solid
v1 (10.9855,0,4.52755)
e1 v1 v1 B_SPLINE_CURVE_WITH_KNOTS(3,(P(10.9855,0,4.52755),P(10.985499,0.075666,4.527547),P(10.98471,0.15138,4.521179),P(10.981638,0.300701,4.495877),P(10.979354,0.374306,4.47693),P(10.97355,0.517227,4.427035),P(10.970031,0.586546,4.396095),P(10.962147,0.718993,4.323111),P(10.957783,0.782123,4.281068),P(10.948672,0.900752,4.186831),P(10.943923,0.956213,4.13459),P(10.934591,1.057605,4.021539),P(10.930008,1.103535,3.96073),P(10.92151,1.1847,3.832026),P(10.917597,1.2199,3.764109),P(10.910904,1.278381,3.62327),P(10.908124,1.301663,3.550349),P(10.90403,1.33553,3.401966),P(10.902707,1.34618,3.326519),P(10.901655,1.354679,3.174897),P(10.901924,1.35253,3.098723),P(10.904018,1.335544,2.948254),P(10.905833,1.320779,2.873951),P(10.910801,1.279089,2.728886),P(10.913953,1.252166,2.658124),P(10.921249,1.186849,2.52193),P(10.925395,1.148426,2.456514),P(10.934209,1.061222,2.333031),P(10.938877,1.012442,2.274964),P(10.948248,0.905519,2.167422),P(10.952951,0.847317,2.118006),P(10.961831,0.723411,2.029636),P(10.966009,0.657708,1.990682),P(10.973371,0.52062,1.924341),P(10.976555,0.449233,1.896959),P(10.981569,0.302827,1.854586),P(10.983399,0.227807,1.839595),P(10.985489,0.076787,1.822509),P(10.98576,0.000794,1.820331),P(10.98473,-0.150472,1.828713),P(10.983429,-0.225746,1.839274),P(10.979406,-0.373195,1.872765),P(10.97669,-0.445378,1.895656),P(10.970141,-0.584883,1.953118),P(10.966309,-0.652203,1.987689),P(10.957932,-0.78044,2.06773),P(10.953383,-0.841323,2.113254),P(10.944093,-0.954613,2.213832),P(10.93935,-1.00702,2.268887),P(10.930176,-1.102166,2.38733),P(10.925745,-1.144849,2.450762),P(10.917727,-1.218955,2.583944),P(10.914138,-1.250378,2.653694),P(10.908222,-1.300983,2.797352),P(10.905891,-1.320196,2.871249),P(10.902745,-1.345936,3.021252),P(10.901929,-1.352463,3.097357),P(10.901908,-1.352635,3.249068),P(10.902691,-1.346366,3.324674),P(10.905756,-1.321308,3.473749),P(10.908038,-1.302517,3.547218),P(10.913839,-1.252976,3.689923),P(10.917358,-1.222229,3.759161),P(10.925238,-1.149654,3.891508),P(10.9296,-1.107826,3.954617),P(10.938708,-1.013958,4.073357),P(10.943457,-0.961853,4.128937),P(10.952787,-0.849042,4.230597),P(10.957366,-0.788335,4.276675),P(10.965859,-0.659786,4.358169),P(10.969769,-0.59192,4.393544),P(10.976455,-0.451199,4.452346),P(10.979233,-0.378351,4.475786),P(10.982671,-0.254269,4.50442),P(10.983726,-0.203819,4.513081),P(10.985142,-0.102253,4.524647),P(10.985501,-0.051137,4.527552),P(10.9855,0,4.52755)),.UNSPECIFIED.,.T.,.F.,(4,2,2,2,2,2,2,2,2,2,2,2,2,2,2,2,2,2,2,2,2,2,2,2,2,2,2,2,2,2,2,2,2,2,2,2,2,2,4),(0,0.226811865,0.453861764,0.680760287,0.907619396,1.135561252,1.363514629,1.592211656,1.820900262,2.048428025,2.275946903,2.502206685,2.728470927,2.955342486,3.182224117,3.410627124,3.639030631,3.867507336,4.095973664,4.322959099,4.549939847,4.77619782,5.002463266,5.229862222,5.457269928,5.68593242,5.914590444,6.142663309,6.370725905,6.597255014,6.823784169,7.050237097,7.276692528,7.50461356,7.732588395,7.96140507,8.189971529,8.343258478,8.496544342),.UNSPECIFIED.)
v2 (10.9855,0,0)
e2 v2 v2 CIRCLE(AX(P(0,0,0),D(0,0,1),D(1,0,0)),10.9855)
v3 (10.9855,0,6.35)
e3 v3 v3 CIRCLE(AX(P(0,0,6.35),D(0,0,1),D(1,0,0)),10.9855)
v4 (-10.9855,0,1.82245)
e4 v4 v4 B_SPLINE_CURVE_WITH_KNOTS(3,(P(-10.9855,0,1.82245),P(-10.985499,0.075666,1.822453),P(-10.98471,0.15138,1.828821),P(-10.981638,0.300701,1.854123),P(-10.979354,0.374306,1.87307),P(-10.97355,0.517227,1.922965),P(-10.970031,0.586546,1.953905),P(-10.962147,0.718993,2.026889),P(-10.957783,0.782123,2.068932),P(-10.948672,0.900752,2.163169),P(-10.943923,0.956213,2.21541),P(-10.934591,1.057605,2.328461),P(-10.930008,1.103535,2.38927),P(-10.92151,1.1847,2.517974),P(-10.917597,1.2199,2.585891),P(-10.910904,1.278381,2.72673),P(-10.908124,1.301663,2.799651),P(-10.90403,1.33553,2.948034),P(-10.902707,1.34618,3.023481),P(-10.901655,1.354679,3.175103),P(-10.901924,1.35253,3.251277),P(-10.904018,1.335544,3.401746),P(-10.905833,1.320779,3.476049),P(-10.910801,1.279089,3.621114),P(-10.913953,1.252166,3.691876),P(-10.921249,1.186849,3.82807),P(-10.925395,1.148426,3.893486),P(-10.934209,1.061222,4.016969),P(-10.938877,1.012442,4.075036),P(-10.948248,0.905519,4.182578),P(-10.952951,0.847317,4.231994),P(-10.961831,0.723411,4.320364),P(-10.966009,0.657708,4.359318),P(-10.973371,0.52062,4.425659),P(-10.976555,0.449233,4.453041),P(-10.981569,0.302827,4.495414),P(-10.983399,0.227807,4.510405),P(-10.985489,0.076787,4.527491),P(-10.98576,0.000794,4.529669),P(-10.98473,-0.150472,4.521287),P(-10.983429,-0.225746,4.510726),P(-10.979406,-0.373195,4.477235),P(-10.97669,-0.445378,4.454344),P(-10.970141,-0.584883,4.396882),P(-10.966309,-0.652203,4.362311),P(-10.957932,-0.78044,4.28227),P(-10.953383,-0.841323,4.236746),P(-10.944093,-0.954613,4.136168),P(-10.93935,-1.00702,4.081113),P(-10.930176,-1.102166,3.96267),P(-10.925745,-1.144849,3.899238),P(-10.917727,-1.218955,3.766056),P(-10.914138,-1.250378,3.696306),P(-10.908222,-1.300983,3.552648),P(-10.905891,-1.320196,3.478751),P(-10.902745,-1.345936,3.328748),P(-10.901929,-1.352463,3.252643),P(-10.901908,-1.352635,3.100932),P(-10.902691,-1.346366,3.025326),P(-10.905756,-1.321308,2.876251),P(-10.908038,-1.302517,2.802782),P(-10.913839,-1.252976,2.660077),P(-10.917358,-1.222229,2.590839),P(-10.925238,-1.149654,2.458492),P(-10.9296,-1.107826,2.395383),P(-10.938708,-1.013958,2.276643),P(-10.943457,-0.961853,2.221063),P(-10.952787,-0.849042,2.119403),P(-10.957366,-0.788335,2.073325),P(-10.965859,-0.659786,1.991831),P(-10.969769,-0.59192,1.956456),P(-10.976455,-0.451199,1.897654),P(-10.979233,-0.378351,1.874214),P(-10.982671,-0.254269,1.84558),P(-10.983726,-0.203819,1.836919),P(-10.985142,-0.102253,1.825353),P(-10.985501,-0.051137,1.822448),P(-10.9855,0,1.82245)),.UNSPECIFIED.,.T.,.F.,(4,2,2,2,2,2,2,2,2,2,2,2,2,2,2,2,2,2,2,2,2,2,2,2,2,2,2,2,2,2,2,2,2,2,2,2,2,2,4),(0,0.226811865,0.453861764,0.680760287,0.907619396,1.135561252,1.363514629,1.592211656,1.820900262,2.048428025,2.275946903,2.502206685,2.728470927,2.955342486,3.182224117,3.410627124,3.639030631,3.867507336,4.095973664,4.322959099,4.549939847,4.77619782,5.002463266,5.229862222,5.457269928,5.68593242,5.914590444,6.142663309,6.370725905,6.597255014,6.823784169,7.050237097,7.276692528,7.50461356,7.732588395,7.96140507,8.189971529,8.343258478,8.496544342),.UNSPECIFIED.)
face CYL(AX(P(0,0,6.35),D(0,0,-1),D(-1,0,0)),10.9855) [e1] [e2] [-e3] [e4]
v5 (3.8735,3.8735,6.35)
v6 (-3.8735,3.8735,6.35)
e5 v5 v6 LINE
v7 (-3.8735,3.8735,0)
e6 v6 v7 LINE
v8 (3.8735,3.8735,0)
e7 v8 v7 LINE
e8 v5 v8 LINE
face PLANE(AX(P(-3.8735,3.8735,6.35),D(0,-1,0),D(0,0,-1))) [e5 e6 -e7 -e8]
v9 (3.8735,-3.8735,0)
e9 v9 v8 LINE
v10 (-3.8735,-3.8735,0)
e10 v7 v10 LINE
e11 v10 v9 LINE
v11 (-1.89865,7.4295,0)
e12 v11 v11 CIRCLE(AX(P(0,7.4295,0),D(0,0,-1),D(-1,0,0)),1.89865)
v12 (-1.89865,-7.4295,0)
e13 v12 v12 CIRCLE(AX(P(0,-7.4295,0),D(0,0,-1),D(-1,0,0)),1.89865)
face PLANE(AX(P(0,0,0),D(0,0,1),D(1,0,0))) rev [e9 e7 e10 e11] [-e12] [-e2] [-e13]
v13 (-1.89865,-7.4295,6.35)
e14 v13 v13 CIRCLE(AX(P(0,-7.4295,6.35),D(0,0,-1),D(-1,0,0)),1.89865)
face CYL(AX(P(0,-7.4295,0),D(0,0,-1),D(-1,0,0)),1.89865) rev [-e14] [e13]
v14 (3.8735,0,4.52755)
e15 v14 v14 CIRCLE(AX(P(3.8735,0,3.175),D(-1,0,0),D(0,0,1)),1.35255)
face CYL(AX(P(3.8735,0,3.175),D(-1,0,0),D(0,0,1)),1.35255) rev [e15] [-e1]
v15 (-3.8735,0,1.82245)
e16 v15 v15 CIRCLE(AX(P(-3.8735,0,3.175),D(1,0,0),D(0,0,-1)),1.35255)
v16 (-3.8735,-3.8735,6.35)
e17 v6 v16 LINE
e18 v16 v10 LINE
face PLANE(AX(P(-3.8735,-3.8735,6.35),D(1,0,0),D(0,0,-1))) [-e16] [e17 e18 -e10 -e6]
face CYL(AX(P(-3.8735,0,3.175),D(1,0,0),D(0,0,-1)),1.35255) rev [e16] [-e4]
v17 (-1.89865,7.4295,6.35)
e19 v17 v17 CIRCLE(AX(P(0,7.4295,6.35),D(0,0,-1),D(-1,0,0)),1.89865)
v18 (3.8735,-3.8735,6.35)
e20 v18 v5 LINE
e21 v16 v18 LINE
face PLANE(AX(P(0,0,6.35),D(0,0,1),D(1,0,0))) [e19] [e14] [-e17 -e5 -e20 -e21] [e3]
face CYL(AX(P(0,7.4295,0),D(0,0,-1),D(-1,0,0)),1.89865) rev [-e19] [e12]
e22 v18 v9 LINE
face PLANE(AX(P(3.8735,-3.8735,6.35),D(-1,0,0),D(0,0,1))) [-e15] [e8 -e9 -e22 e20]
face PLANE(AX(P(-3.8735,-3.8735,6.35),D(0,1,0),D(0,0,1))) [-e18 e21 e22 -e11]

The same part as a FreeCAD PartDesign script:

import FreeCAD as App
import Part
import Sketcher
Q = App.Units.Quantity

doc = App.newDocument("Part")
body = doc.addObject("PartDesign::Body", "Body")

# Sketch on XY plane
sketch1 = doc.addObject("Sketcher::SketchObject", "Sketch")
body.addObject(sketch1)
sketch1.AttachmentSupport = (doc.XY_Plane, [""])
sketch1.MapMode = "FlatFace"
sketch1.addGeometry([
    Part.Circle(App.Vector(0, 0, 0), App.Vector(0, 0, 1), 10.9855),  # 0
    Part.LineSegment(App.Vector(3.8735, -3.8735, 0), App.Vector(-3.8735, -3.8735, 0)),  # 1
    Part.LineSegment(App.Vector(-3.8735, -3.8735, 0), App.Vector(-3.8735, 3.8735, 0)),  # 2
    Part.LineSegment(App.Vector(-3.8735, 3.8735, 0), App.Vector(3.8735, 3.8735, 0)),  # 3
    Part.LineSegment(App.Vector(3.8735, 3.8735, 0), App.Vector(3.8735, -3.8735, 0)),  # 4
], False)
sketch1.addConstraint([
    Sketcher.Constraint("Coincident", 1, 2, 2, 1),
    Sketcher.Constraint("Coincident", 2, 2, 3, 1),
    Sketcher.Constraint("Coincident", 3, 2, 4, 1),
    Sketcher.Constraint("Coincident", 4, 2, 1, 1),
    Sketcher.Constraint("Horizontal", 1),
    Sketcher.Constraint("Vertical", 2),
    Sketcher.Constraint("Horizontal", 3),
    Sketcher.Constraint("Vertical", 4),
    Sketcher.Constraint("Coincident", 0, 3, -1, 1),
    Sketcher.Constraint("Symmetric", 1, 2, 3, 2, -1, 1),
    Sketcher.Constraint("Equal", 3, 2),
    Sketcher.Constraint("Diameter", 0, Q("0.865 in")),
    Sketcher.Constraint("DistanceX", 1, 2, 1, 1, Q("0.305 in")),
])
pad1 = doc.addObject("PartDesign::Pad", "Pad")
body.addObject(pad1)
pad1.Profile = sketch1
pad1.Length = Q("0.25 in")

# Sketch on YZ plane
sketch2 = doc.addObject("Sketcher::SketchObject", "Sketch001")
body.addObject(sketch2)
sketch2.AttachmentSupport = (doc.YZ_Plane, [""])
sketch2.MapMode = "FlatFace"
sketch2.AttachmentOffset = App.Placement(App.Vector(0, 0, 0.4325 * 25.4), App.Rotation())
sketch2.addGeometry(Part.Circle(App.Vector(0, 3.175, 0), App.Vector(0, 0, 1), 1.35255), False)
sketch2.addConstraint([
    Sketcher.Constraint("PointOnObject", 0, 3, -2),
    Sketcher.Constraint("Diameter", 0, Q("0.1065 in")),
    Sketcher.Constraint("DistanceY", -1, 1, 0, 3, Q("0.125 in")),
])
doc.recompute()
hole = doc.addObject("PartDesign::Hole", "Hole")
body.addObject(hole)
hole.Profile = sketch2
hole.ThreadType = "None"
hole.Diameter = Q("0.1065 in")
hole.DepthType = "Dimension"
hole.Depth = Q("0.28 in")
hole.DrillPoint = "Flat"

# Sketch on YZ plane
sketch3 = doc.addObject("Sketcher::SketchObject", "Sketch002")
body.addObject(sketch3)
sketch3.AttachmentSupport = (doc.YZ_Plane, [""])
sketch3.MapMode = "FlatFace"
sketch3.AttachmentOffset = App.Placement(App.Vector(0, 0, 0.1525 * 25.4), App.Rotation())
sketch3.addGeometry(Part.Circle(App.Vector(0, 3.175, 0), App.Vector(0, 0, 1), 1.35255), False)
sketch3.addConstraint([
    Sketcher.Constraint("PointOnObject", 0, 3, -2),
    Sketcher.Constraint("Diameter", 0, Q("0.1065 in")),
    Sketcher.Constraint("DistanceY", -1, 1, 0, 3, Q("0.125 in")),
])
doc.recompute()
hole2 = doc.addObject("PartDesign::Hole", "Hole001")
body.addObject(hole2)
hole2.Profile = sketch3
hole2.ThreadType = "None"
hole2.Diameter = Q("0.1065 in")
hole2.DepthType = "Dimension"
hole2.Depth = Q("0.28 in")
hole2.DrillPoint = "Flat"
hole2.Reversed = True

# Sketch on YZ plane
sketch4 = doc.addObject("Sketcher::SketchObject", "Sketch003")
body.addObject(sketch4)
sketch4.AttachmentSupport = (doc.YZ_Plane, [""])
sketch4.MapMode = "FlatFace"
sketch4.AttachmentOffset = App.Placement(App.Vector(0, 0, -0.1525 * 25.4), App.Rotation())
sketch4.addGeometry(Part.Circle(App.Vector(0, 3.175, 0), App.Vector(0, 0, 1), 1.35255), False)
sketch4.addConstraint([
    Sketcher.Constraint("PointOnObject", 0, 3, -2),
    Sketcher.Constraint("Diameter", 0, Q("0.1065 in")),
    Sketcher.Constraint("DistanceY", -1, 1, 0, 3, Q("0.125 in")),
])
doc.recompute()
hole3 = doc.addObject("PartDesign::Hole", "Hole002")
body.addObject(hole3)
hole3.Profile = sketch4
hole3.ThreadType = "None"
hole3.Diameter = Q("0.1065 in")
hole3.DepthType = "ThroughAll"

# Sketch on XY plane
sketch5 = doc.addObject("Sketcher::SketchObject", "Sketch004")
body.addObject(sketch5)
sketch5.AttachmentSupport = (doc.XY_Plane, [""])
sketch5.MapMode = "FlatFace"
sketch5.addGeometry([
    Part.Circle(App.Vector(0, -7.4295, 0), App.Vector(0, 0, 1), 1.89865),
    Part.Circle(App.Vector(0, 7.4295, 0), App.Vector(0, 0, 1), 1.89865),
], False)
sketch5.addConstraint([
    Sketcher.Constraint("Equal", 0, 1),
    Sketcher.Constraint("Symmetric", 0, 3, 1, 3, -1, 1),
    Sketcher.Constraint("PointOnObject", 0, 3, -2),
    Sketcher.Constraint("Diameter", 0, Q("0.1495 in")),
    Sketcher.Constraint("DistanceY", 0, 3, 1, 3, Q("0.585 in")),
])
doc.recompute()
hole4 = doc.addObject("PartDesign::Hole", "Hole003")
body.addObject(hole4)
hole4.Profile = sketch5
hole4.ThreadType = "None"
hole4.Diameter = Q("0.1495 in")
hole4.DepthType = "ThroughAll"
hole4.Reversed = True

doc.recompute()
